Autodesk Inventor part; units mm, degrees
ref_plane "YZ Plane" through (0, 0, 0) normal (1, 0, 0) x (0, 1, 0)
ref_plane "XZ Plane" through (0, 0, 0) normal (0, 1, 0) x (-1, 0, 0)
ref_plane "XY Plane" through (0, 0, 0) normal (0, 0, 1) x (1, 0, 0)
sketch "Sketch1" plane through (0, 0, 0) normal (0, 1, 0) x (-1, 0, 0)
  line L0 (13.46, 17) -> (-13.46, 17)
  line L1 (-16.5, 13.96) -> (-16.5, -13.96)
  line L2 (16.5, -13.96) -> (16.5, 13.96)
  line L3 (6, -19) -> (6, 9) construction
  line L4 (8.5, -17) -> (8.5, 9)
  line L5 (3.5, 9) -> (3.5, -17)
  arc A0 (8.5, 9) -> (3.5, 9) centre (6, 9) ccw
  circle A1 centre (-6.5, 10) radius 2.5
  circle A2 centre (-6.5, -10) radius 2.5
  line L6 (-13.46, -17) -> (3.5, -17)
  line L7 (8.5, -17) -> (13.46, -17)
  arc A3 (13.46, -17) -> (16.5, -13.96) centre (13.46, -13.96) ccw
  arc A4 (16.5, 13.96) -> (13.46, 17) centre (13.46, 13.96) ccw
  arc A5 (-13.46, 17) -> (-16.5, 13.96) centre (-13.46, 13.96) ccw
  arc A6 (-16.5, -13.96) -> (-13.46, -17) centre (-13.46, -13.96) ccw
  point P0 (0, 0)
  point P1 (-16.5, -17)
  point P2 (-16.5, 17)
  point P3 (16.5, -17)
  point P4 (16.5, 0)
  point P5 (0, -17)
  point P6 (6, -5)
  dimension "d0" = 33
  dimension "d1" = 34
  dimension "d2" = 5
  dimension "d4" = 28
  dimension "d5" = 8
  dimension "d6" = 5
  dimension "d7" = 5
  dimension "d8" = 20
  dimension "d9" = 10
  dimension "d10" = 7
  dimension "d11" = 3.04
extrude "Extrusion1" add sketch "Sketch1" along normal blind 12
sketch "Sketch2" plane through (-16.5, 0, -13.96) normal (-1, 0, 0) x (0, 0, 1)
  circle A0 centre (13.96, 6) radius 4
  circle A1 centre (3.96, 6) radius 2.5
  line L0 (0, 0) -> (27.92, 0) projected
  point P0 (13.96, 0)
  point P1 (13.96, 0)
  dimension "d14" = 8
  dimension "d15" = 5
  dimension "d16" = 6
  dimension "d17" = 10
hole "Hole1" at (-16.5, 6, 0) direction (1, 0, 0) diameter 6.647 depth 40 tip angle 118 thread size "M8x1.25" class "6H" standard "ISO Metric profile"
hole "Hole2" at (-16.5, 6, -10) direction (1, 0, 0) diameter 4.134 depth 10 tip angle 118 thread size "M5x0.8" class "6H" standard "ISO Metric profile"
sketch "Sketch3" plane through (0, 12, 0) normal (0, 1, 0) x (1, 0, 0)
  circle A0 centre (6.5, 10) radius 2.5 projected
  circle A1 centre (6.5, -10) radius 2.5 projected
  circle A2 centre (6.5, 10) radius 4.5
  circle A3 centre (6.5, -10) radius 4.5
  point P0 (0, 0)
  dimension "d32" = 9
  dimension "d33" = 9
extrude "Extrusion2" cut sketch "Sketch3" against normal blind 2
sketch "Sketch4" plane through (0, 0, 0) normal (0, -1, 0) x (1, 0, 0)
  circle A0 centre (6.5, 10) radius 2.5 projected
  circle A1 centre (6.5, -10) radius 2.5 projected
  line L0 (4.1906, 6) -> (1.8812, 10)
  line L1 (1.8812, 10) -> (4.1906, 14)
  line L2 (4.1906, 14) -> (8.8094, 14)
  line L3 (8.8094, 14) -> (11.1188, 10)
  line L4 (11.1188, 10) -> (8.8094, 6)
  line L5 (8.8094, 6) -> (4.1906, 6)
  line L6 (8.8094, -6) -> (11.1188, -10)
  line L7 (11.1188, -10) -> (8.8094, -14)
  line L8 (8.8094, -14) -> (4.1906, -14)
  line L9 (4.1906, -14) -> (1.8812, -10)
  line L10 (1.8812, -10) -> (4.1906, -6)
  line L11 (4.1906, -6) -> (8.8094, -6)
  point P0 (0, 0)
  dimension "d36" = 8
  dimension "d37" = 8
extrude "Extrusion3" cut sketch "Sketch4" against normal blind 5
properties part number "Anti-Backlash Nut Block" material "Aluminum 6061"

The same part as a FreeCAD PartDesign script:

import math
import FreeCAD as App
import Part
import Sketcher
from FreeCAD import Vector
Q = App.Units.Quantity

doc = App.newDocument("Part")
body = doc.addObject("PartDesign::Body", "Body")

# Sketch on XZ plane
sketch1 = body.newObject("Sketcher::SketchObject", "Sketch")
sketch1.AttachmentSupport = (doc.getObject("XZ_Plane"), [""])
sketch1.MapMode = "FlatFace"
sketch1.addGeometry(Part.ArcOfCircle(Part.Circle(Vector(-13.5, 14, 0), Vector(0, 0, 1), 3), math.radians(90), math.radians(180)), False)
sketch1.addGeometry(Part.LineSegment(Vector(-13.5, 17, 0), Vector(13.5, 17, 0)), False)
sketch1.addGeometry(Part.ArcOfCircle(Part.Circle(Vector(13.5, 14, 0), Vector(0, 0, 1), 3), math.radians(0), math.radians(90)), False)
sketch1.addGeometry(Part.LineSegment(Vector(16.5, 14, 0), Vector(16.5, -14, 0)), False)
sketch1.addGeometry(Part.ArcOfCircle(Part.Circle(Vector(13.5, -14, 0), Vector(0, 0, 1), 3), math.radians(-90), math.radians(0)), False)
sketch1.addGeometry(Part.LineSegment(Vector(13.5, -17, 0), Vector(-3.5, -17, 0)), False)
sketch1.addGeometry(Part.LineSegment(Vector(-3.5, -17, 0), Vector(-3.5, 9, 0)), False)
sketch1.addGeometry(Part.ArcOfCircle(Part.Circle(Vector(-6, 9, 0), Vector(0, 0, 1), 2.5), math.radians(0), math.radians(180)), False)
sketch1.addGeometry(Part.LineSegment(Vector(-8.5, 9, 0), Vector(-8.5, -17, 0)), False)
sketch1.addGeometry(Part.LineSegment(Vector(-8.5, -17, 0), Vector(-13.5, -17, 0)), False)
sketch1.addGeometry(Part.ArcOfCircle(Part.Circle(Vector(-13.5, -14, 0), Vector(0, 0, 1), 3), math.radians(180), math.radians(270)), False)
sketch1.addGeometry(Part.LineSegment(Vector(-16.5, -14, 0), Vector(-16.5, 14, 0)), False)
sketch1.addGeometry(Part.Circle(Vector(6.5, -10, 0), Vector(0, 0, 1), 2.5), False)
sketch1.addGeometry(Part.Circle(Vector(6.5, 10, 0), Vector(0, 0, 1), 2.5), False)
sketch1.addConstraint(Sketcher.Constraint("Tangent", 0, 1, 1, 1))
sketch1.addConstraint(Sketcher.Constraint("Tangent", 1, 2, 2, 2))
sketch1.addConstraint(Sketcher.Constraint("Tangent", 2, 1, 3, 1))
sketch1.addConstraint(Sketcher.Constraint("Tangent", 3, 2, 4, 2))
sketch1.addConstraint(Sketcher.Constraint("Tangent", 4, 1, 5, 1))
sketch1.addConstraint(Sketcher.Constraint("Coincident", 5, 2, 6, 1))
sketch1.addConstraint(Sketcher.Constraint("Tangent", 6, 2, 7, 1))
sketch1.addConstraint(Sketcher.Constraint("Tangent", 7, 2, 8, 1))
sketch1.addConstraint(Sketcher.Constraint("Coincident", 8, 2, 9, 1))
sketch1.addConstraint(Sketcher.Constraint("Tangent", 9, 2, 10, 2))
sketch1.addConstraint(Sketcher.Constraint("Tangent", 10, 1, 11, 1))
sketch1.addConstraint(Sketcher.Constraint("Tangent", 11, 2, 0, 2))
sketch1.addConstraint(Sketcher.Constraint("Horizontal", 1))
sketch1.addConstraint(Sketcher.Constraint("Vertical", 3))
sketch1.addConstraint(Sketcher.Constraint("Horizontal", 5))
sketch1.addConstraint(Sketcher.Constraint("Vertical", 6))
sketch1.addConstraint(Sketcher.Constraint("Vertical", 8))
sketch1.addConstraint(Sketcher.Constraint("Horizontal", 9))
sketch1.addConstraint(Sketcher.Constraint("Vertical", 11))
sketch1.addConstraint(Sketcher.Constraint("Equal", 0, 2))
sketch1.addConstraint(Sketcher.Constraint("Equal", 2, 4))
sketch1.addConstraint(Sketcher.Constraint("Equal", 4, 10))
sketch1.addConstraint(Sketcher.Constraint("Equal", 7, 12))
sketch1.addConstraint(Sketcher.Constraint("Equal", 12, 13))
sketch1.addConstraint(Sketcher.Constraint("Symmetric", 0, 3, 4, 3, -1, 1))
sketch1.addConstraint(Sketcher.Constraint("Symmetric", 12, 3, 13, 3, -1))
sketch1.addConstraint(Sketcher.Constraint("Horizontal", 4, 3, 10, 3))
sketch1.addConstraint(Sketcher.Constraint("Diameter", 12, 5.0))
sketch1.addConstraint(Sketcher.Constraint("Radius", 0, 3.04))
sketch1.addConstraint(Sketcher.Constraint("DistanceY", 12, 3, -1, 1, 10.0))
sketch1.addConstraint(Sketcher.Constraint("DistanceY", 7, 3, 0, 1, 8.0))
sketch1.addConstraint(Sketcher.Constraint("DistanceY", 13, 3, 0, 1, 7.0))
sketch1.addConstraint(Sketcher.Constraint("DistanceX", 13, 3, 2, 1, 10.0))
sketch1.addConstraint(Sketcher.Constraint("DistanceX", 5, 2, 12, 3, 10.0))
sketch1.addConstraint(Sketcher.Constraint("DistanceX", 10, 1, 8, 2, 8.0))
pad1 = body.newObject("PartDesign::Pad", "Pad")
pad1.Profile = sketch1
pad1.Length = 12
pad1.Reversed = True

# Sketch on YZ plane
sketch2 = body.newObject("Sketcher::SketchObject", "Sketch001")
sketch2.AttachmentSupport = (doc.getObject("YZ_Plane"), [""])
sketch2.MapMode = "FlatFace"
sketch2.AttachmentOffset = App.Placement(Vector(0, 0, -16.5), App.Rotation())
sketch2.addGeometry(Part.Circle(Vector(6, 0, 0), Vector(0, 0, 1), 3.3), False)
sketch2.addConstraint(Sketcher.Constraint("PointOnObject", 0, 3, -1))
sketch2.addConstraint(Sketcher.Constraint("Diameter", 0, 6.647))
sketch2.addConstraint(Sketcher.Constraint("DistanceX", -1, 1, 0, 3, 6.0))
doc.recompute()
hole = body.newObject("PartDesign::Hole", "Hole")
hole.Profile = sketch2
hole.ThreadType = "None"
hole.Diameter = 6.647
hole.DepthType = "Dimension"
hole.Depth = 40
hole.DrillPoint = "Angled"
hole.DrillPointAngle = 118
hole.Reversed = True

# Sketch on YZ plane
sketch3 = body.newObject("Sketcher::SketchObject", "Sketch002")
sketch3.AttachmentSupport = (doc.getObject("YZ_Plane"), [""])
sketch3.MapMode = "FlatFace"
sketch3.AttachmentOffset = App.Placement(Vector(0, 0, -16.5), App.Rotation())
sketch3.addGeometry(Part.Circle(Vector(6, -10, 0), Vector(0, 0, 1), 2.1), False)
sketch3.addConstraint(Sketcher.Constraint("Diameter", 0, 4.134))
sketch3.addConstraint(Sketcher.Constraint("DistanceX", -1, 1, 0, 3, 6.0))
sketch3.addConstraint(Sketcher.Constraint("DistanceY", 0, 3, -1, 1, 10.0))
doc.recompute()
hole2 = body.newObject("PartDesign::Hole", "Hole001")
hole2.Profile = sketch3
hole2.ThreadType = "None"
hole2.Diameter = 4.134
hole2.DepthType = "Dimension"
hole2.Depth = 10
hole2.DrillPoint = "Angled"
hole2.DrillPointAngle = 118
hole2.Reversed = True

# Sketch on XZ plane
sketch4 = body.newObject("Sketcher::SketchObject", "Sketch003")
sketch4.AttachmentSupport = (doc.getObject("XZ_Plane"), [""])
sketch4.MapMode = "FlatFace"
sketch4.AttachmentOffset = App.Placement(Vector(0, 0, -12), App.Rotation())
sketch4.addGeometry(Part.Circle(Vector(6.5, -10, 0), Vector(0, 0, 1), 4.5), False)
sketch4.addGeometry(Part.Circle(Vector(6.5, -10, 0), Vector(0, 0, 1), 2.5), False)
sketch4.addGeometry(Part.Circle(Vector(6.5, 10, 0), Vector(0, 0, 1), 4.5), False)
sketch4.addGeometry(Part.Circle(Vector(6.5, 10, 0), Vector(0, 0, 1), 2.5), False)
sketch4.addConstraint(Sketcher.Constraint("Coincident", 1, 3, 0, 3))
sketch4.addConstraint(Sketcher.Constraint("Coincident", 3, 3, 2, 3))
sketch4.addConstraint(Sketcher.Constraint("Equal", 0, 2))
sketch4.addConstraint(Sketcher.Constraint("Equal", 1, 3))
sketch4.addConstraint(Sketcher.Constraint("Symmetric", 0, 3, 2, 3, -1))
sketch4.addConstraint(Sketcher.Constraint("Diameter", 0, 9.0))
sketch4.addConstraint(Sketcher.Constraint("Diameter", 1, 5.0))
sketch4.addConstraint(Sketcher.Constraint("DistanceY", 0, 3, -1, 1, 10.0))
sketch4.addConstraint(Sketcher.Constraint("DistanceX", -1, 1, 0, 3, 6.5))
pocket1 = body.newObject("PartDesign::Pocket", "Pocket")
pocket1.Profile = sketch4
pocket1.Length = 2
pocket1.Reversed = True

# Sketch on XZ plane
sketch5 = body.newObject("Sketcher::SketchObject", "Sketch004")
sketch5.AttachmentSupport = (doc.getObject("XZ_Plane"), [""])
sketch5.MapMode = "FlatFace"
sketch5.addGeometry(Part.LineSegment(Vector(1.9, 10, 0), Vector(4.2, 6, 0)), False)
sketch5.addGeometry(Part.LineSegment(Vector(4.2, 6, 0), Vector(8.8, 6, 0)), False)
sketch5.addGeometry(Part.LineSegment(Vector(8.8, 6, 0), Vector(11.1, 10, 0)), False)
sketch5.addGeometry(Part.LineSegment(Vector(11.1, 10, 0), Vector(8.8, 14, 0)), False)
sketch5.addGeometry(Part.LineSegment(Vector(8.8, 14, 0), Vector(4.2, 14, 0)), False)
sketch5.addGeometry(Part.LineSegment(Vector(4.2, 14, 0), Vector(1.9, 10, 0)), False)
sketch5.addGeometry(Part.Circle(Vector(6.5, 10, 0), Vector(0, 0, 1), 2.5), False)
sketch5.addGeometry(Part.LineSegment(Vector(11.1, -10, 0), Vector(8.8, -6, 0)), False)
sketch5.addGeometry(Part.LineSegment(Vector(8.8, -6, 0), Vector(4.2, -6, 0)), False)
sketch5.addGeometry(Part.LineSegment(Vector(4.2, -6, 0), Vector(1.9, -10, 0)), False)
sketch5.addGeometry(Part.LineSegment(Vector(1.9, -10, 0), Vector(4.2, -14, 0)), False)
sketch5.addGeometry(Part.LineSegment(Vector(4.2, -14, 0), Vector(8.8, -14, 0)), False)
sketch5.addGeometry(Part.LineSegment(Vector(8.8, -14, 0), Vector(11.1, -10, 0)), False)
sketch5.addGeometry(Part.Circle(Vector(6.5, -10, 0), Vector(0, 0, 1), 2.5), False)
sketch5.addConstraint(Sketcher.Constraint("Coincident", 0, 2, 1, 1))
sketch5.addConstraint(Sketcher.Constraint("Coincident", 1, 2, 2, 1))
sketch5.addConstraint(Sketcher.Constraint("Coincident", 2, 2, 3, 1))
sketch5.addConstraint(Sketcher.Constraint("Coincident", 3, 2, 4, 1))
sketch5.addConstraint(Sketcher.Constraint("Coincident", 4, 2, 5, 1))
sketch5.addConstraint(Sketcher.Constraint("Coincident", 5, 2, 0, 1))
sketch5.addConstraint(Sketcher.Constraint("Coincident", 7, 2, 8, 1))
sketch5.addConstraint(Sketcher.Constraint("Coincident", 8, 2, 9, 1))
sketch5.addConstraint(Sketcher.Constraint("Coincident", 9, 2, 10, 1))
sketch5.addConstraint(Sketcher.Constraint("Coincident", 10, 2, 11, 1))
sketch5.addConstraint(Sketcher.Constraint("Coincident", 11, 2, 12, 1))
sketch5.addConstraint(Sketcher.Constraint("Coincident", 12, 2, 7, 1))
sketch5.addConstraint(Sketcher.Constraint("Horizontal", 1))
sketch5.addConstraint(Sketcher.Constraint("Horizontal", 4))
sketch5.addConstraint(Sketcher.Constraint("Horizontal", 8))
sketch5.addConstraint(Sketcher.Constraint("Horizontal", 11))
sketch5.addConstraint(Sketcher.Constraint("Equal", 6, 13))
sketch5.addConstraint(Sketcher.Constraint("Symmetric", 6, 3, 13, 3, -1))
sketch5.addConstraint(Sketcher.Constraint("Symmetric", 1, 2, 7, 2, -1))
sketch5.addConstraint(Sketcher.Constraint("Symmetric", 5, 2, 9, 2, -1))
sketch5.addConstraint(Sketcher.Constraint("Symmetric", 4, 2, 10, 2, -1))
sketch5.addConstraint(Sketcher.Constraint("Symmetric", 2, 2, 12, 2, -1))
sketch5.addConstraint(Sketcher.Constraint("Parallel", 0, 3))
sketch5.addConstraint(Sketcher.Constraint("Parallel", 2, 5))
sketch5.addConstraint(Sketcher.Constraint("Parallel", 3, 7))
sketch5.addConstraint(Sketcher.Constraint("Parallel", 5, 9))
sketch5.addConstraint(Sketcher.Constraint("Parallel", 9, 12))
sketch5.addConstraint(Sketcher.Constraint("Horizontal", 6, 3, 2, 2))
sketch5.addConstraint(Sketcher.Constraint("Horizontal", 2, 2, 5, 2))
sketch5.addConstraint(Sketcher.Constraint("Vertical", 1, 2, 3, 2))
sketch5.addConstraint(Sketcher.Constraint("Diameter", 6, 5.0))
sketch5.addConstraint(Sketcher.Constraint("DistanceY", 1, 2, 3, 2, 8.0))
sketch5.addConstraint(Sketcher.Constraint("Angle", 0, Q("-60 deg")))
sketch5.addConstraint(Sketcher.Constraint("DistanceY", -1, 1, 6, 3, 10.0))
sketch5.addConstraint(Sketcher.Constraint("DistanceX", -1, 1, 6, 3, 6.5))
sketch5.addConstraint(Sketcher.Constraint("DistanceX", 1, 1, 1, 2, 4.6188))
sketch5.addConstraint(Sketcher.Constraint("DistanceX", -1, 1, 0, 2, 4.1906))
pocket2 = body.newObject("PartDesign::Pocket", "Pocket001")
pocket2.Profile = sketch5
pocket2.Length = 5

doc.recompute()
